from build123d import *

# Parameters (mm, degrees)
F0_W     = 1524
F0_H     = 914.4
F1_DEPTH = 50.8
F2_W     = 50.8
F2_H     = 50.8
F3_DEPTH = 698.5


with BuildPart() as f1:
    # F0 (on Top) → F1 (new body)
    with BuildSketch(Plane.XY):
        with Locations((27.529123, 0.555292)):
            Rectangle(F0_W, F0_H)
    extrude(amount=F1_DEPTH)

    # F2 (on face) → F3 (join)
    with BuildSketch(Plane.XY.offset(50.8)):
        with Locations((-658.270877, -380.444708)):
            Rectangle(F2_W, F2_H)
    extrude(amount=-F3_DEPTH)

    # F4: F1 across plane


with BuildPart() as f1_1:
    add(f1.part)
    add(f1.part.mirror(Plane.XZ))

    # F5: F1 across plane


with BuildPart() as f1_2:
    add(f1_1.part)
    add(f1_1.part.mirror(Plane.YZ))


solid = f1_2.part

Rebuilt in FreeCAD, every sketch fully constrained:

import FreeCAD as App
import Part
import Sketcher
from FreeCAD import Vector
Q = App.Units.Quantity

doc = App.newDocument("Part")
body = doc.addObject("PartDesign::Body", "Body")

# Sketch on XY plane
sketch1 = doc.addObject("Sketcher::SketchObject", "Sketch")
body.addObject(sketch1)
sketch1.AttachmentSupport = (doc.XY_Plane, [""])
sketch1.MapMode = "FlatFace"
sketch1.addGeometry([
    Part.LineSegment(Vector(-734, 458, 0), Vector(-734, -457, 0)),
    Part.LineSegment(Vector(-734, -457, 0), Vector(790, -457, 0)),
    Part.LineSegment(Vector(790, -457, 0), Vector(790, 458, 0)),
    Part.LineSegment(Vector(790, 458, 0), Vector(-734, 458, 0)),
], False)
sketch1.addConstraint([
    Sketcher.Constraint("Coincident", 0, 2, 1, 1),
    Sketcher.Constraint("Coincident", 1, 2, 2, 1),
    Sketcher.Constraint("Coincident", 2, 2, 3, 1),
    Sketcher.Constraint("Coincident", 3, 2, 0, 1),
    Sketcher.Constraint("Vertical", 0),
    Sketcher.Constraint("Horizontal", 1),
    Sketcher.Constraint("Vertical", 2),
    Sketcher.Constraint("Horizontal", 3),
    Sketcher.Constraint("DistanceX", 1, 1, 1, 2, Q("60 in")),
    Sketcher.Constraint("DistanceY", 0, 2, 0, 1, Q("36 in")),
    Sketcher.Constraint("DistanceY", 0, 2, -1, 1, Q("456.644708 mm")),
    Sketcher.Constraint("DistanceX", 0, 2, -1, 1, Q("734.470877 mm")),
])
pad1 = doc.addObject("PartDesign::Pad", "Pad")
body.addObject(pad1)
pad1.Profile = sketch1
pad1.Length = Q("2 in")

# Sketch on XY plane
sketch2 = doc.addObject("Sketcher::SketchObject", "Sketch001")
body.addObject(sketch2)
sketch2.AttachmentSupport = (doc.XY_Plane, [""])
sketch2.MapMode = "FlatFace"
sketch2.AttachmentOffset = App.Placement(Vector(0, 0, 2 * 25.4), App.Rotation())
sketch2.addGeometry([
    Part.LineSegment(Vector(-684, -355, 0), Vector(-684, -406, 0)),
    Part.LineSegment(Vector(-684, -406, 0), Vector(-633, -406, 0)),
    Part.LineSegment(Vector(-633, -406, 0), Vector(-633, -355, 0)),
    Part.LineSegment(Vector(-633, -355, 0), Vector(-684, -355, 0)),
], False)
sketch2.addConstraint([
    Sketcher.Constraint("Coincident", 0, 2, 1, 1),
    Sketcher.Constraint("Coincident", 1, 2, 2, 1),
    Sketcher.Constraint("Coincident", 2, 2, 3, 1),
    Sketcher.Constraint("Coincident", 3, 2, 0, 1),
    Sketcher.Constraint("Vertical", 0),
    Sketcher.Constraint("Horizontal", 1),
    Sketcher.Constraint("Vertical", 2),
    Sketcher.Constraint("Horizontal", 3),
    Sketcher.Constraint("Equal", 3, 0),
    Sketcher.Constraint("DistanceX", 1, 1, 1, 2, Q("2 in")),
    Sketcher.Constraint("DistanceY", 0, 2, -1, 1, Q("405.844708 mm")),
    Sketcher.Constraint("DistanceX", 0, 2, -1, 1, Q("683.670877 mm")),
])
pad2 = doc.addObject("PartDesign::Pad", "Pad001")
body.addObject(pad2)
pad2.Profile = sketch2
pad2.Length = Q("27.5 in")
pad2.Reversed = True
body2 = doc.addObject("PartDesign::Body", "Body001")
doc.recompute()

body2.BaseFeature = body
doc.recompute()

mirroring = doc.addObject("Part::Mirroring", "Mirroring")
mirroring.Source = body
mirroring.Base = Vector(0, 0, 0)
mirroring.Normal = Vector(0, -1, 0)
body3 = doc.addObject("PartDesign::Body", "Body002")
body3.BaseFeature = mirroring
boolean = doc.addObject("PartDesign::Boolean", "Boolean")
body2.addObject(boolean)
boolean.Type = "Fuse"
boolean.addObjects([body3])
doc.recompute()
body4 = doc.addObject("PartDesign::Body", "Body003")
doc.recompute()

body4.BaseFeature = body2
doc.recompute()

mirroring2 = doc.addObject("Part::Mirroring", "Mirroring001")
mirroring2.Source = body2
mirroring2.Base = Vector(0, 0, 0)
mirroring2.Normal = Vector(1, 0, 0)
body5 = doc.addObject("PartDesign::Body", "Body004")
body5.BaseFeature = mirroring2
boolean2 = doc.addObject("PartDesign::Boolean", "Boolean001")
body4.addObject(boolean2)
boolean2.Type = "Fuse"
boolean2.addObjects([body5])
doc.recompute()
mirroring.Visibility = False
mirroring2.Visibility = False

doc.recompute()
